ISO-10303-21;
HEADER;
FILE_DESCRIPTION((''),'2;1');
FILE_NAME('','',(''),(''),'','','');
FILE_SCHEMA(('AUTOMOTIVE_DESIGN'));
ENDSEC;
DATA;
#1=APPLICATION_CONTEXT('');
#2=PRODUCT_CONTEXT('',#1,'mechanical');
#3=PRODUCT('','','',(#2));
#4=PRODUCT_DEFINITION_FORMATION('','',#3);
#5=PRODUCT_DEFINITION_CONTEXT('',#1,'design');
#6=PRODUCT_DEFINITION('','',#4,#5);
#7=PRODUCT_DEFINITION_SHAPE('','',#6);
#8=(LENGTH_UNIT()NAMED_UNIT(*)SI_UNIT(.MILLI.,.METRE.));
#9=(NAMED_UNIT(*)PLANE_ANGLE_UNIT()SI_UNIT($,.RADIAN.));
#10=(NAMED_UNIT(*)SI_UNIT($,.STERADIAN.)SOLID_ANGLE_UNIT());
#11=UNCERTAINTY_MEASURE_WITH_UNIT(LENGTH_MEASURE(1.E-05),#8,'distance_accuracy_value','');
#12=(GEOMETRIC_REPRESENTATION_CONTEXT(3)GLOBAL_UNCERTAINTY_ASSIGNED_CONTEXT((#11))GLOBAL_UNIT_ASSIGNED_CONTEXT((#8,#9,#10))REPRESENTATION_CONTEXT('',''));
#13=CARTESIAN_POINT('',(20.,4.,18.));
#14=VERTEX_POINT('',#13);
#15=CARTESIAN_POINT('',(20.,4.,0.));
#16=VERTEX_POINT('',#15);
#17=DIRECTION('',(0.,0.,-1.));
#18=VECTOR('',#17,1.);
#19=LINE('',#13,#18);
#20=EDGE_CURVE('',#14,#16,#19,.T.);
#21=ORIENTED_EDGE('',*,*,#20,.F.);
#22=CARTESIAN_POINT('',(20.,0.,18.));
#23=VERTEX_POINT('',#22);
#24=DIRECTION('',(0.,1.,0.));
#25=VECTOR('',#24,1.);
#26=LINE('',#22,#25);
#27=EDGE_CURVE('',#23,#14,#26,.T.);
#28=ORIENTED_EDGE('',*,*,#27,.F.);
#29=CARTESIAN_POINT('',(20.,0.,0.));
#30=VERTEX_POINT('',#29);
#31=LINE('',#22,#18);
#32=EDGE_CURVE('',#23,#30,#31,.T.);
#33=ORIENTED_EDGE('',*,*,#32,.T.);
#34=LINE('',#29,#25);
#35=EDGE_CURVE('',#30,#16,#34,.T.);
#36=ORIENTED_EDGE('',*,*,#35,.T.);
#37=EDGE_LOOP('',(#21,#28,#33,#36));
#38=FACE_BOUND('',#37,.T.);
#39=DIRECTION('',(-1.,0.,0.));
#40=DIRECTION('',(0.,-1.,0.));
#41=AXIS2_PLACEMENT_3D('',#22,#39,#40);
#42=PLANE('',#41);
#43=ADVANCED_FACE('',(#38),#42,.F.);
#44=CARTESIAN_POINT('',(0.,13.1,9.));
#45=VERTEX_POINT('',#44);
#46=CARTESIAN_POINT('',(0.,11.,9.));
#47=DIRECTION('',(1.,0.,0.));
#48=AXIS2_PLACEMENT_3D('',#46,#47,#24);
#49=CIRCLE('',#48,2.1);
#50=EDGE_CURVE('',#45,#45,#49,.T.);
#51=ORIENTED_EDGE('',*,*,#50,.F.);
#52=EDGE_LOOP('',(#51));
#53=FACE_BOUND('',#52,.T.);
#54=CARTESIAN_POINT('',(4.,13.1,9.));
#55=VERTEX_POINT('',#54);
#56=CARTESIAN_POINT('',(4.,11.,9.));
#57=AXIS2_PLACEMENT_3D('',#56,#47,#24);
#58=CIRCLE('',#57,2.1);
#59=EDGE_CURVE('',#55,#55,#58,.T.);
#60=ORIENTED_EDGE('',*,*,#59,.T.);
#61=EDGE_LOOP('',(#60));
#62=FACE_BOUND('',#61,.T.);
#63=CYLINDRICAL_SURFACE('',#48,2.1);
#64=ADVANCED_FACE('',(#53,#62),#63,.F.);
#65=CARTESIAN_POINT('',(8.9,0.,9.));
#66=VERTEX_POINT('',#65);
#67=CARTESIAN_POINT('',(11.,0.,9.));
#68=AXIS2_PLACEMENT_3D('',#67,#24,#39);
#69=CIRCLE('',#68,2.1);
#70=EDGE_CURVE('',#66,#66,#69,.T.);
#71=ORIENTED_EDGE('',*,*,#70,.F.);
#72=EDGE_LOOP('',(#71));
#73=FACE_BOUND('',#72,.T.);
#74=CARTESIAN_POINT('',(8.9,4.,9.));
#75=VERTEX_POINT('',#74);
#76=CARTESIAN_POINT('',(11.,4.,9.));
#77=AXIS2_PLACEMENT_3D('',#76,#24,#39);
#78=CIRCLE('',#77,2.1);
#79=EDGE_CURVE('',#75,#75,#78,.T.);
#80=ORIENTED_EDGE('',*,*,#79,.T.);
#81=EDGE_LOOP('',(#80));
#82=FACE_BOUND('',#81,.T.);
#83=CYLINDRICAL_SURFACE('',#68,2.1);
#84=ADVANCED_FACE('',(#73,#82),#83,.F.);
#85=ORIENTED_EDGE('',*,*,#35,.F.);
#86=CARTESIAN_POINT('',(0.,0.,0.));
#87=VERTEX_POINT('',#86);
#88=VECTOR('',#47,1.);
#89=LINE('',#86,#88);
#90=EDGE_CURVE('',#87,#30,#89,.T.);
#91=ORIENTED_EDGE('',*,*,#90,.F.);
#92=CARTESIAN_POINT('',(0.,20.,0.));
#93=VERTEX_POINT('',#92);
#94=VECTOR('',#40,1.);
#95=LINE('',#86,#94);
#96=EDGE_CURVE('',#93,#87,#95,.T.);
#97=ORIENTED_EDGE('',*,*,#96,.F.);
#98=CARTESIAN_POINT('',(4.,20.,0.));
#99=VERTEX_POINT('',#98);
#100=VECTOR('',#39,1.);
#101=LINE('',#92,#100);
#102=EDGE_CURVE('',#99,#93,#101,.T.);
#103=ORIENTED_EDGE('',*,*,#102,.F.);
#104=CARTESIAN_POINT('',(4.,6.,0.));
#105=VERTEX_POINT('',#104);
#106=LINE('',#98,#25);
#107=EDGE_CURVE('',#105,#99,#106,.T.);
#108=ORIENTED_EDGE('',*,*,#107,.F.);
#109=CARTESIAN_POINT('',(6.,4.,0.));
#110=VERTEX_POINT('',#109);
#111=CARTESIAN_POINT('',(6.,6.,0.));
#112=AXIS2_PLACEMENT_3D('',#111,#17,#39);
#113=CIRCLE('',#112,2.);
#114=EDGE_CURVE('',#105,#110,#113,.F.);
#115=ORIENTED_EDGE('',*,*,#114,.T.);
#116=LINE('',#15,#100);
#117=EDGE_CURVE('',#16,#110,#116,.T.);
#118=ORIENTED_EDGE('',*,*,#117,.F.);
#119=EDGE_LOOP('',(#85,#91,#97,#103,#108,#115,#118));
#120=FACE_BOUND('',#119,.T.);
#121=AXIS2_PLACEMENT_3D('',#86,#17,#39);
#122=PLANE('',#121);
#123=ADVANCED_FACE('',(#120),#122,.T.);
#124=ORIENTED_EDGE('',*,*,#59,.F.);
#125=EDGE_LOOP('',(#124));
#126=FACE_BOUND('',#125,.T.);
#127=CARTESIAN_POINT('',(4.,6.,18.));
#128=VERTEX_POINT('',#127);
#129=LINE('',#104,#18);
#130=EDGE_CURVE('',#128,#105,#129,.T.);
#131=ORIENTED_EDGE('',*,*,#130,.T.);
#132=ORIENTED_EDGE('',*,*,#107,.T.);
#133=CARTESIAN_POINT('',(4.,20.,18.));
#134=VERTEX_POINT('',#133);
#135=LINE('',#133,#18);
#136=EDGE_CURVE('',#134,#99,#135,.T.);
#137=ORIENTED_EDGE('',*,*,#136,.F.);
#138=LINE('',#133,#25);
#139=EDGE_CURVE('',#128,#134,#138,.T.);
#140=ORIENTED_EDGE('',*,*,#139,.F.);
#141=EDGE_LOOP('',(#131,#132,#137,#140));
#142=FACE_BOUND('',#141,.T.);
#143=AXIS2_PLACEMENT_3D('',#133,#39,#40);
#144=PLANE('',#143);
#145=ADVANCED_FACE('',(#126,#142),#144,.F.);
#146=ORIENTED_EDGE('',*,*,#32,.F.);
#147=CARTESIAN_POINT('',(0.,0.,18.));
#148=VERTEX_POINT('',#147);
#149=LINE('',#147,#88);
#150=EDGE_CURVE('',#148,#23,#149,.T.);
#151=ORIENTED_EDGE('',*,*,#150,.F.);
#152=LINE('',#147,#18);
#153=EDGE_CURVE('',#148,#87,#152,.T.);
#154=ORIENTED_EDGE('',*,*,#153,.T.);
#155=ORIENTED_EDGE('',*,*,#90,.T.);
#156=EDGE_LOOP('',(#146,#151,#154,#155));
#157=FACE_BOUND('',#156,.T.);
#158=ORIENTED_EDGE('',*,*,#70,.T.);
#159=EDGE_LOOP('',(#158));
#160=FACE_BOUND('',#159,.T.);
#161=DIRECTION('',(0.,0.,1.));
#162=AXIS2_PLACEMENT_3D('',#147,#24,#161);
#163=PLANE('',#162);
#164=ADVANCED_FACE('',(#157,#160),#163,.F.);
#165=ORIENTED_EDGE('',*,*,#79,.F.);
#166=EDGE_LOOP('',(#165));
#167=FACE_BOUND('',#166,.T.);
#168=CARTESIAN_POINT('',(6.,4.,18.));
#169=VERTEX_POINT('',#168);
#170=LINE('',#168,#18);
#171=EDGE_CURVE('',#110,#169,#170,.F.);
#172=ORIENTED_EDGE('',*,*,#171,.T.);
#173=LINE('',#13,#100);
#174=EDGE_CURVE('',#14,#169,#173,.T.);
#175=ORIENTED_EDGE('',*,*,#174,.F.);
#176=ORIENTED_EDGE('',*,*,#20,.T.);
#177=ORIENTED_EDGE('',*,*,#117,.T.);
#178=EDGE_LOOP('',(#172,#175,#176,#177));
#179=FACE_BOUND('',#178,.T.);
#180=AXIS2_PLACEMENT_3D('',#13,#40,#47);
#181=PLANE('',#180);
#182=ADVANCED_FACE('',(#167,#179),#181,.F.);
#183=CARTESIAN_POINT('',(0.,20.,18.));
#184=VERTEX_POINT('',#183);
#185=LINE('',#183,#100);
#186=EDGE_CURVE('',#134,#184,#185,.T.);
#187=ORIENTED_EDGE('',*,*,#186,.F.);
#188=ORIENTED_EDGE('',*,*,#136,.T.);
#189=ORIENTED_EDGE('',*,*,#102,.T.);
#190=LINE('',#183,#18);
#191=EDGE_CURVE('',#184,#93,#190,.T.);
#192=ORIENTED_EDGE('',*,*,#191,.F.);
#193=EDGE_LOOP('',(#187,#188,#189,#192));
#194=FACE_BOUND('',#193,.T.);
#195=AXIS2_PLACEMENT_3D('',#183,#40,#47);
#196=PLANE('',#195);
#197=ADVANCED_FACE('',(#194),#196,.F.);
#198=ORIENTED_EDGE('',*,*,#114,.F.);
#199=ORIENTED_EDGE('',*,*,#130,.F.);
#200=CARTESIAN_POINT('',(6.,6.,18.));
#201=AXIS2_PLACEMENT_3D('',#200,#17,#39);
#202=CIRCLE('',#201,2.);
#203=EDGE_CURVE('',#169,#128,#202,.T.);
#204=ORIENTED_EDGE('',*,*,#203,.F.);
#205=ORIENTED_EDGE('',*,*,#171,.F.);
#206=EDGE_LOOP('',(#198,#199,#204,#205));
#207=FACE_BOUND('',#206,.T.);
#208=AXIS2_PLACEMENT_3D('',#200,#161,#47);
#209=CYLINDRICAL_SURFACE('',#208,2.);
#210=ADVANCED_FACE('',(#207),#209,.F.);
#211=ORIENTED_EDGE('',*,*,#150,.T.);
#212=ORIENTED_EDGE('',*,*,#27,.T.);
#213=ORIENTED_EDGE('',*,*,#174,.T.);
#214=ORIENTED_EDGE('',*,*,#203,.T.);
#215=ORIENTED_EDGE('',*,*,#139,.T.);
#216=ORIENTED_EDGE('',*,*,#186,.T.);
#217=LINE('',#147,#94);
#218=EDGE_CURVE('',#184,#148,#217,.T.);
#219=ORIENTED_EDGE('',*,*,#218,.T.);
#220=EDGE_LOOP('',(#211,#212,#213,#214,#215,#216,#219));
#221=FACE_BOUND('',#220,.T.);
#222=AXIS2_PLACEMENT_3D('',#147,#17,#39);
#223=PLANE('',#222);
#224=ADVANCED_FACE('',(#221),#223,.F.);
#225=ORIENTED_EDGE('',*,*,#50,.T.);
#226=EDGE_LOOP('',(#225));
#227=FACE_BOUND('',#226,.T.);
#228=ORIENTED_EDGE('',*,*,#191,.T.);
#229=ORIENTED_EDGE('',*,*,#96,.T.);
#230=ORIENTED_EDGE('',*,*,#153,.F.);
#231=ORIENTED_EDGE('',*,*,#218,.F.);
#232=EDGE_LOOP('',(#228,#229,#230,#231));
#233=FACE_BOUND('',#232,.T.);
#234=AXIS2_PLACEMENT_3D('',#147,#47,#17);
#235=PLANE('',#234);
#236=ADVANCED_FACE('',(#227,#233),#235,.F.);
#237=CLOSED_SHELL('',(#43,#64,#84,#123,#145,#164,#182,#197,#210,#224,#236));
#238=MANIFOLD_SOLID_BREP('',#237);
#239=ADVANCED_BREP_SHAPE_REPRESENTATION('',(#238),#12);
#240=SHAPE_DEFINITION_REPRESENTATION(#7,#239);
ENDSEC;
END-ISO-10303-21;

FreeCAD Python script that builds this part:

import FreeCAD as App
import Part
import Sketcher
from FreeCAD import Vector
Q = App.Units.Quantity


def edges_at(feature, points):
    """Names of the edges that pass closest to the given points."""
    edges = feature.Shape.Edges
    near = lambda p: min(range(len(edges)), key=lambda i: edges[i].distToShape(Part.Vertex(*p))[0])
    return sorted({f"Edge{near(p) + 1}" for p in points})


def add_polygon(sketch, points):
    """Adds a closed chain of lines whose ends are joined by coincident constraints."""
    first, n = sketch.GeometryCount, len(points)
    for a, b in zip(points, points[1:] + points[:1]):
        sketch.addGeometry(Part.LineSegment(App.Vector(*a, 0), App.Vector(*b, 0)), False)
    for i in range(n):
        sketch.addConstraint(Sketcher.Constraint("Coincident", first + i, 2, first + (i + 1) % n, 1))

doc = App.newDocument("Part")
body = doc.addObject("PartDesign::Body", "Body")

sketch1 = doc.addObject("Sketcher::SketchObject", "Sketch")
body.addObject(sketch1)
sketch1.AttachmentSupport = (doc.XY_Plane, [""])
sketch1.MapMode = "FlatFace"
add_polygon(sketch1, [(0, 0), (20, 0), (20, 4), (4, 4), (4, 20), (0, 20)])
sketch1.addConstraint([
    Sketcher.Constraint("Horizontal", 0),
    Sketcher.Constraint("Vertical", 1),
    Sketcher.Constraint("Horizontal", 2),
    Sketcher.Constraint("Vertical", 3),
    Sketcher.Constraint("Horizontal", 4),
    Sketcher.Constraint("Vertical", 5),
    Sketcher.Constraint("Coincident", 5, 2, -1, 1),
    Sketcher.Constraint("Equal", 4, 1),
    Sketcher.Constraint("Equal", 2, 3),
    Sketcher.Constraint("DistanceX", 0, 1, 0, 2, Q("20 mm")),
    Sketcher.Constraint("DistanceX", 2, 2, 2, 1, Q("16 mm")),
])
pad1 = doc.addObject("PartDesign::Pad", "Pad")
body.addObject(pad1)
pad1.Profile = sketch1
pad1.Length = 18

sketch2 = doc.addObject("Sketcher::SketchObject", "Sketch001")
body.addObject(sketch2)
sketch2.AttachmentSupport = (doc.YZ_Plane, [""])
sketch2.MapMode = "FlatFace"
sketch2.AttachmentOffset = App.Placement(Vector(0, 0, 4), App.Rotation())
sketch2.addGeometry(Part.Circle(Vector(11, 9, 0), Vector(0, 0, 1), 2.1), False)
sketch2.addConstraint([
    Sketcher.Constraint("Diameter", 0, Q("4.2 mm")),
    Sketcher.Constraint("DistanceX", -1, 1, 0, 3, Q("11 mm")),
    Sketcher.Constraint("DistanceY", -1, 1, 0, 3, Q("9 mm")),
])
pocket1 = doc.addObject("PartDesign::Pocket", "Pocket")
body.addObject(pocket1)
pocket1.Profile = sketch2
pocket1.Type = "ThroughAll"

sketch3 = doc.addObject("Sketcher::SketchObject", "Sketch002")
body.addObject(sketch3)
sketch3.AttachmentSupport = (doc.XZ_Plane, [""])
sketch3.MapMode = "FlatFace"
sketch3.AttachmentOffset = App.Placement(Vector(0, 0, -4), App.Rotation())
sketch3.addGeometry(Part.Circle(Vector(11, 9, 0), Vector(0, 0, 1), 2.1), False)
sketch3.addConstraint([
    Sketcher.Constraint("Diameter", 0, Q("4.2 mm")),
    Sketcher.Constraint("DistanceX", -1, 1, 0, 3, Q("11 mm")),
    Sketcher.Constraint("DistanceY", -1, 1, 0, 3, Q("9 mm")),
])
pocket2 = doc.addObject("PartDesign::Pocket", "Pocket001")
body.addObject(pocket2)
pocket2.Profile = sketch3
pocket2.Type = "ThroughAll"
pocket2.Reversed = True
doc.recompute()

fillet = doc.addObject("PartDesign::Fillet", "Fillet")
body.addObject(fillet)
fillet.Base = (pocket2, edges_at(pocket2, [(4, 4, 9)]))
fillet.Radius = 2

doc.recompute()
